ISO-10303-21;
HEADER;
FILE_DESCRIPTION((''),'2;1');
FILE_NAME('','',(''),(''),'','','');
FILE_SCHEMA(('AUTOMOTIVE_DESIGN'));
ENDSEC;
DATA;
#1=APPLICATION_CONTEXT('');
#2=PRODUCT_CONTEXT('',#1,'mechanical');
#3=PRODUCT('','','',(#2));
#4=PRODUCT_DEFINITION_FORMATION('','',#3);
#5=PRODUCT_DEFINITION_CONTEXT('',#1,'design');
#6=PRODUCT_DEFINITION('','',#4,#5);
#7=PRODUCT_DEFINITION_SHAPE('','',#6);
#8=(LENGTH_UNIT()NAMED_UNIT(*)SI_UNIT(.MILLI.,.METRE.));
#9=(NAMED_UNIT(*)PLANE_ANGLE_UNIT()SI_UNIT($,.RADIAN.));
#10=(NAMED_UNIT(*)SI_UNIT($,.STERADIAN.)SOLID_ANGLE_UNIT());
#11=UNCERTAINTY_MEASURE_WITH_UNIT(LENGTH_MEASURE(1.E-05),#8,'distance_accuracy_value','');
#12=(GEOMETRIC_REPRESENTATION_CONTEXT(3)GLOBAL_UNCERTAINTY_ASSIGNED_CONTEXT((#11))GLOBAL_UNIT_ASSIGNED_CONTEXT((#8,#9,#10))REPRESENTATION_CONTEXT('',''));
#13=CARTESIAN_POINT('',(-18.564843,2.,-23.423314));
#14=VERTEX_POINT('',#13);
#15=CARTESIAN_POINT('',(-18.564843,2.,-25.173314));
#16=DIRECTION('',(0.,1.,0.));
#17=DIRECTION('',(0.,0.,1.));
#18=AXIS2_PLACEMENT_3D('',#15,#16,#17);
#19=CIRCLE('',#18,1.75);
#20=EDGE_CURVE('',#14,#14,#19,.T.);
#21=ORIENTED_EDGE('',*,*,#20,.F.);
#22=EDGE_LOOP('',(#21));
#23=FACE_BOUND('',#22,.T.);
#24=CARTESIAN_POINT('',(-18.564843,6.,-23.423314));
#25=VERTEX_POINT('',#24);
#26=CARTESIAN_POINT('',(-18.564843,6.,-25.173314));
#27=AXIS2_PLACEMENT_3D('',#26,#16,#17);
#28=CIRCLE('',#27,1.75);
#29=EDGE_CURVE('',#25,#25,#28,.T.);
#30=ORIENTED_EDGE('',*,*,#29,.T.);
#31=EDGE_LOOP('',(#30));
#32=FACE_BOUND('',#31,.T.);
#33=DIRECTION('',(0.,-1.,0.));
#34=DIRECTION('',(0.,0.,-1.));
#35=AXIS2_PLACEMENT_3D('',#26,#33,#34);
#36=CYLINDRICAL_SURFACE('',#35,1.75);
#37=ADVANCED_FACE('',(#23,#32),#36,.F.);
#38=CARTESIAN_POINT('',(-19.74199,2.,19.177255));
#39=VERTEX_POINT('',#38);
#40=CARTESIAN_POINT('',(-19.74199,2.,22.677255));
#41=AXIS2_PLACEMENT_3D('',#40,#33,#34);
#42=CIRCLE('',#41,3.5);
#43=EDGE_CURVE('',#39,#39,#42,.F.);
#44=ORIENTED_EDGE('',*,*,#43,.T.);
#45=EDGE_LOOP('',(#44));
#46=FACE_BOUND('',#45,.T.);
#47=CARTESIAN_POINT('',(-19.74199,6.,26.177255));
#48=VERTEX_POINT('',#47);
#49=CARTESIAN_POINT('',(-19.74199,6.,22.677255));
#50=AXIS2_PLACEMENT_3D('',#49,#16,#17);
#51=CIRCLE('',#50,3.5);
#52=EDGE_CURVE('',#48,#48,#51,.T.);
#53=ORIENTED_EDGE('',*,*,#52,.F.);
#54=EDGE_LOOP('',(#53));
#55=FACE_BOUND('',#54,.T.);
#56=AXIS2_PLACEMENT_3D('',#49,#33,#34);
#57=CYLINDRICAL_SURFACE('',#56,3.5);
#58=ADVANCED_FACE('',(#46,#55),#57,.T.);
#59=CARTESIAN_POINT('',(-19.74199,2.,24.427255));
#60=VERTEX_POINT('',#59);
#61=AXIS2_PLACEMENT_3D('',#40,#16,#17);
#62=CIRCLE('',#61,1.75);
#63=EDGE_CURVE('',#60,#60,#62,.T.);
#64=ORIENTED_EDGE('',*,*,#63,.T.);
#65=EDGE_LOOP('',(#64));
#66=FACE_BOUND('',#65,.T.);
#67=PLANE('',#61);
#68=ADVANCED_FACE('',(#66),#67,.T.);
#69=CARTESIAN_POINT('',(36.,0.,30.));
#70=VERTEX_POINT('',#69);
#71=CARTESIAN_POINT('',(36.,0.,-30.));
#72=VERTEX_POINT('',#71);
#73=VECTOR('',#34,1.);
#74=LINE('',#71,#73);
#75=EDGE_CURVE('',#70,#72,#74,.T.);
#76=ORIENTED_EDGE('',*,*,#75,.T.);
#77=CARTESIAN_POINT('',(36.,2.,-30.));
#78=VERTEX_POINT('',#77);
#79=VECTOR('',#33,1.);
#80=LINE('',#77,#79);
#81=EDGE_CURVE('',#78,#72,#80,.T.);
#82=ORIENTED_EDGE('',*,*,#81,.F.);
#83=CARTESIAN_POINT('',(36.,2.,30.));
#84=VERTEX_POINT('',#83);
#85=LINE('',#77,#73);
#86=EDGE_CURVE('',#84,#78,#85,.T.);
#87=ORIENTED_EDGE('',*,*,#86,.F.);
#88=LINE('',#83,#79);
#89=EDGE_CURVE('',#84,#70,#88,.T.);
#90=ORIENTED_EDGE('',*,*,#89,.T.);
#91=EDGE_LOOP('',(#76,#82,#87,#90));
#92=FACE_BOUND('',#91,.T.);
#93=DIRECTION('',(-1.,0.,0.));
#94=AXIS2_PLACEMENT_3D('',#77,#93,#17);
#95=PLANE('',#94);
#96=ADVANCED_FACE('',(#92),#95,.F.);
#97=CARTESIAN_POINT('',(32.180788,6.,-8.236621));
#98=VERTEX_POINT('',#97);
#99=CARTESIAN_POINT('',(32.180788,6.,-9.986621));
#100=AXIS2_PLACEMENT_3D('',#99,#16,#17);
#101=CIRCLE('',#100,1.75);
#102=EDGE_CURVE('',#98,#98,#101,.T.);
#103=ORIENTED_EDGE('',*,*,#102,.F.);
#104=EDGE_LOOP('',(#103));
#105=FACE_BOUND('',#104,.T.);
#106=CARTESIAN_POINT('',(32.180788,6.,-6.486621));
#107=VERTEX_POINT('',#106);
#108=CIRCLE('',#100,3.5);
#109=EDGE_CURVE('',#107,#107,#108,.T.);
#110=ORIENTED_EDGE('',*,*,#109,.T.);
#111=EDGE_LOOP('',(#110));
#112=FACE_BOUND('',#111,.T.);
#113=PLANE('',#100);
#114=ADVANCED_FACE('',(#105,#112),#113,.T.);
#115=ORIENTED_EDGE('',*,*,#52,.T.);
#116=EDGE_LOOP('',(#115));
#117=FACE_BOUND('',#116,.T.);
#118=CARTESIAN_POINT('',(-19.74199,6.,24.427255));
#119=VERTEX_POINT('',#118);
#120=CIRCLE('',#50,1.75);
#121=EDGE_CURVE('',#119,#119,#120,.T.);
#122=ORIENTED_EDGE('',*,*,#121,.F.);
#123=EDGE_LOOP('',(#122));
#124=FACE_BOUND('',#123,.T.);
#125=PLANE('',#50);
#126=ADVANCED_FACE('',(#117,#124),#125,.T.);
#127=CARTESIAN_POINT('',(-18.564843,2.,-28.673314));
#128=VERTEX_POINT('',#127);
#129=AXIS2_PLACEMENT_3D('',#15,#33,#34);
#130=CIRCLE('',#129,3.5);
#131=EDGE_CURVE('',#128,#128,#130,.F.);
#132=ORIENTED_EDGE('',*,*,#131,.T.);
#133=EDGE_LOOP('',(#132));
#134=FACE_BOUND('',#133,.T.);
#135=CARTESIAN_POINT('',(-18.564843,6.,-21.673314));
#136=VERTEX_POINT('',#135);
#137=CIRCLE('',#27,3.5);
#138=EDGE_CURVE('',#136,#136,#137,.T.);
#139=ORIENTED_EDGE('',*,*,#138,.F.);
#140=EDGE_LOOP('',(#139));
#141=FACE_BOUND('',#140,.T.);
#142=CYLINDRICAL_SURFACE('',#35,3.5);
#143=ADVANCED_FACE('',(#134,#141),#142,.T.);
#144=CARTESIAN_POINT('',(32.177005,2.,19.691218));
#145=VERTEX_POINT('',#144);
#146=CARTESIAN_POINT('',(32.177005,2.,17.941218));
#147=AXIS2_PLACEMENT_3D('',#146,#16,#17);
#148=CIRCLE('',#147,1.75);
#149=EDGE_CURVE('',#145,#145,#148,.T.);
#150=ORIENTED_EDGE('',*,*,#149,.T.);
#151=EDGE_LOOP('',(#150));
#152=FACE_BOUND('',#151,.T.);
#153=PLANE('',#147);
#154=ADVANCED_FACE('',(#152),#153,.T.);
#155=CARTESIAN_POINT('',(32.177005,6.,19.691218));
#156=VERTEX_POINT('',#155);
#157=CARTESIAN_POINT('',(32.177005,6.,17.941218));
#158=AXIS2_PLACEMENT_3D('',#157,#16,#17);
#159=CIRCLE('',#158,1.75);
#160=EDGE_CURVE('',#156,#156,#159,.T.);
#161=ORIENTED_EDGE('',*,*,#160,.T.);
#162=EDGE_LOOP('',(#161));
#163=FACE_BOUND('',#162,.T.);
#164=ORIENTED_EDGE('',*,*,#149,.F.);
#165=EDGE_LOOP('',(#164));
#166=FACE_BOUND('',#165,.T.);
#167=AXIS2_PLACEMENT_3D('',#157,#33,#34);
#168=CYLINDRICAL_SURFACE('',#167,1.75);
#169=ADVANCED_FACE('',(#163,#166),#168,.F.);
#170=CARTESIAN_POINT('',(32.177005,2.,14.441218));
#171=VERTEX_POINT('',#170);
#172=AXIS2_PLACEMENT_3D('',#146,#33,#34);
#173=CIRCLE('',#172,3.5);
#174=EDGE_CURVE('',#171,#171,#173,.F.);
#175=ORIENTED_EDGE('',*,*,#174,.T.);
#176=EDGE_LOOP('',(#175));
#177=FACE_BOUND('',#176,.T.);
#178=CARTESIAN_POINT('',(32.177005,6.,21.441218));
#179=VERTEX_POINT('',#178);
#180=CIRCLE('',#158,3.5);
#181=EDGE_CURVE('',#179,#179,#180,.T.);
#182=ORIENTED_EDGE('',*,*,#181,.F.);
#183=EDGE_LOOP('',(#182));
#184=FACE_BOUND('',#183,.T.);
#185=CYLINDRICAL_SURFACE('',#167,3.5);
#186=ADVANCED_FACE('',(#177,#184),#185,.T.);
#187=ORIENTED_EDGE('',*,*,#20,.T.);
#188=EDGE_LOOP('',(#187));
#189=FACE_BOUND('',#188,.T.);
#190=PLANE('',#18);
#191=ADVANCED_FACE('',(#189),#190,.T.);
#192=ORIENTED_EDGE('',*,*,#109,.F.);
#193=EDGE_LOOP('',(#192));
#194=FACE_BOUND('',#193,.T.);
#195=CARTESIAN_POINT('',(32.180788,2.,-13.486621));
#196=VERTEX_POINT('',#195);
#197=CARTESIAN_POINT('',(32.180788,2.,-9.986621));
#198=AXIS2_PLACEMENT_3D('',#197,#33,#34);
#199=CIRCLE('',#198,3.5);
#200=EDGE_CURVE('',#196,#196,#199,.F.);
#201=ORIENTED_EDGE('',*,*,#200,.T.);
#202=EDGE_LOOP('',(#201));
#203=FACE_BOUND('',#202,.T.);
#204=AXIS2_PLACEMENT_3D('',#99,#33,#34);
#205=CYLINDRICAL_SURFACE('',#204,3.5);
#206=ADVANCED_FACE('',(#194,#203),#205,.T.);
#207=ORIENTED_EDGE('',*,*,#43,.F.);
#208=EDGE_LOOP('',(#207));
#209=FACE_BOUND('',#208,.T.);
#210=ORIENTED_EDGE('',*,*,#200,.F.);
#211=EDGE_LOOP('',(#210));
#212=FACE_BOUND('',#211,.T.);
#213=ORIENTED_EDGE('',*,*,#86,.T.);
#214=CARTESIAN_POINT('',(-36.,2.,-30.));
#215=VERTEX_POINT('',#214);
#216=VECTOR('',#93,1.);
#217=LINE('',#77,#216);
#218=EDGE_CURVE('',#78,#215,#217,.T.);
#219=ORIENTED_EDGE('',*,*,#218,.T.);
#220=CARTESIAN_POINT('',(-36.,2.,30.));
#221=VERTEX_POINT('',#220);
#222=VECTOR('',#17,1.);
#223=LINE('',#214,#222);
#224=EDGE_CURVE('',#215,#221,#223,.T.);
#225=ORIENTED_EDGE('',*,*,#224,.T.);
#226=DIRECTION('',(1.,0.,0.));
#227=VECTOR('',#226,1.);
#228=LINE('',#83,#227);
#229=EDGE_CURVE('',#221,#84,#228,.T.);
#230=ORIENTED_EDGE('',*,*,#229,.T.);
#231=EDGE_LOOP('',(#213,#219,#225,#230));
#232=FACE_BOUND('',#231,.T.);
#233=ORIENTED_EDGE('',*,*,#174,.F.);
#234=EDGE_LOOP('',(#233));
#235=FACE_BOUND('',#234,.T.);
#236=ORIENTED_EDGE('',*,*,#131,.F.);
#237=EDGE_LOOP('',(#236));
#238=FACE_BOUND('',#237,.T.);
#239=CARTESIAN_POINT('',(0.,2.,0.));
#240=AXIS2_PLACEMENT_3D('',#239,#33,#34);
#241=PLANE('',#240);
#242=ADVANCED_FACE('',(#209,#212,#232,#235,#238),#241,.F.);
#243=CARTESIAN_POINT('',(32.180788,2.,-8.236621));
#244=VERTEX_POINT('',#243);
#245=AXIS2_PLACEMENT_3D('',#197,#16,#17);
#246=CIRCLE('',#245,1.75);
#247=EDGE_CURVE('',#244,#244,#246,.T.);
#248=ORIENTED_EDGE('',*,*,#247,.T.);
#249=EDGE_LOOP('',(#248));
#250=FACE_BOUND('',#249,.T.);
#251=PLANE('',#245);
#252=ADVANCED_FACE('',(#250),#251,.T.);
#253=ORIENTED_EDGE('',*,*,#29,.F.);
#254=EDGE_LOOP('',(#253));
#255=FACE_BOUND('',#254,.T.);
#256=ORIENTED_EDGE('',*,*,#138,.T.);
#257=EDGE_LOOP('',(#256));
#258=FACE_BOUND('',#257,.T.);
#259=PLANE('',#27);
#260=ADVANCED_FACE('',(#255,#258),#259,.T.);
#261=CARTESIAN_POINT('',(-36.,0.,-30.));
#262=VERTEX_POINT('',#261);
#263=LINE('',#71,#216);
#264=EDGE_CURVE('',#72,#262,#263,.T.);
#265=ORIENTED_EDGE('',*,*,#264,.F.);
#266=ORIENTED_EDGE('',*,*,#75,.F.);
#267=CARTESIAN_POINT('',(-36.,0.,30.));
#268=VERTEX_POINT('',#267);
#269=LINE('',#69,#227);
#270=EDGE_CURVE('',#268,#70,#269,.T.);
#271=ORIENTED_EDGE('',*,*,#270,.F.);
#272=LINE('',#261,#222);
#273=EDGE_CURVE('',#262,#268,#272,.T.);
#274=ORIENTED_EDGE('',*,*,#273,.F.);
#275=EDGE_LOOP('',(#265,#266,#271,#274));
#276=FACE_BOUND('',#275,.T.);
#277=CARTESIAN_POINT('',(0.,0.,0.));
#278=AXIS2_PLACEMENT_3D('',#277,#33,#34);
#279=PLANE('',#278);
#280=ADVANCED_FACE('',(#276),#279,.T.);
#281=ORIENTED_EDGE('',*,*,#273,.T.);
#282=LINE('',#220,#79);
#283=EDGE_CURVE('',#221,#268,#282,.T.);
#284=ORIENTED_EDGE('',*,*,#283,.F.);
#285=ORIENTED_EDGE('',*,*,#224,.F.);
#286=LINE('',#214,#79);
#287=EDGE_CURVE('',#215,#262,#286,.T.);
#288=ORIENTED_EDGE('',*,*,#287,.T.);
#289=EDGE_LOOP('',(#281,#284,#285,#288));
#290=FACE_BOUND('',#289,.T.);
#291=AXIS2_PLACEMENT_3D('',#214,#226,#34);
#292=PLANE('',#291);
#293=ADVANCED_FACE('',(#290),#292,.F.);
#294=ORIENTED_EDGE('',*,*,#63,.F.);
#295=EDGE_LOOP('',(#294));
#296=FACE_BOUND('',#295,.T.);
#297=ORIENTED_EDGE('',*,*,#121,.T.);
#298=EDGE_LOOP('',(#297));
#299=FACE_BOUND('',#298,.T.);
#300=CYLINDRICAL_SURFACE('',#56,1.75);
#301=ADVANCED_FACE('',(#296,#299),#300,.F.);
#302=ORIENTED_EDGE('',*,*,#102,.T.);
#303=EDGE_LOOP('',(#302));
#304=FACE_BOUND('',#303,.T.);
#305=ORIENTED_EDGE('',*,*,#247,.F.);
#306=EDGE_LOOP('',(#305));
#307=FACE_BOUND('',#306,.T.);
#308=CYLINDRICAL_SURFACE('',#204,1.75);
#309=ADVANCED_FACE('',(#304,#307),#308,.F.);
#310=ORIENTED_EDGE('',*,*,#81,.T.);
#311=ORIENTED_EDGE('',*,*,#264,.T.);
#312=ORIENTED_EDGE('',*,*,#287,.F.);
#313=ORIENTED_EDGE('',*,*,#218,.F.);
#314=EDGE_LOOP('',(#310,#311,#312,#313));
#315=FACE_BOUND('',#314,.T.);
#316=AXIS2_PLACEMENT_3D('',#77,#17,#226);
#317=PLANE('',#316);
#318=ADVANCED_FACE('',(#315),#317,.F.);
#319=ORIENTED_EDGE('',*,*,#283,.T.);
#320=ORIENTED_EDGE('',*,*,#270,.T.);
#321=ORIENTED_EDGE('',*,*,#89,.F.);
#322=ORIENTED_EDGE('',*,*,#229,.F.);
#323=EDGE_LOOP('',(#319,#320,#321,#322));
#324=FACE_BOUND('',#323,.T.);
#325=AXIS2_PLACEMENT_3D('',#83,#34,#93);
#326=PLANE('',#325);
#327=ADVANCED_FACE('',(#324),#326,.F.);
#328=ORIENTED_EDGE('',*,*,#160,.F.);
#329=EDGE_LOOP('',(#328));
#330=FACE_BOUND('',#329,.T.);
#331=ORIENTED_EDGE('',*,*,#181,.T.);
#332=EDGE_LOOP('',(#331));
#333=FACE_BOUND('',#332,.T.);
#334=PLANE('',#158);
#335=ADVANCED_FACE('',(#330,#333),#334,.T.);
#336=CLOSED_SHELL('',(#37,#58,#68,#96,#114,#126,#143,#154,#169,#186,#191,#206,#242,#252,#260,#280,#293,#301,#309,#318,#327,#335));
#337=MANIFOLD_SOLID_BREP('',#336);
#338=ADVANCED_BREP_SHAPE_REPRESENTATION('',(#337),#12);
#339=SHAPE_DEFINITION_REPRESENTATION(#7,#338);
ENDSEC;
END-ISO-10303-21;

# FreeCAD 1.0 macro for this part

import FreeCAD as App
import Part
import Sketcher


def add_polygon(sketch, points):
    """Adds a closed chain of lines whose ends are joined by coincident constraints."""
    first, n = sketch.GeometryCount, len(points)
    for a, b in zip(points, points[1:] + points[:1]):
        sketch.addGeometry(Part.LineSegment(App.Vector(*a, 0), App.Vector(*b, 0)), False)
    for i in range(n):
        sketch.addConstraint(Sketcher.Constraint("Coincident", first + i, 2, first + (i + 1) % n, 1))

doc = App.newDocument("Part")
body = doc.addObject("PartDesign::Body", "Body")

sketch1 = body.newObject("Sketcher::SketchObject", "Sketch")
sketch1.AttachmentSupport = (doc.getObject("XZ_Plane"), [""])
sketch1.MapMode = "FlatFace"
add_polygon(sketch1, [(-36, -30), (-36, 30), (36, 30), (36, -30)])
sketch1.addConstraint([
    Sketcher.Constraint("Vertical", 0),
    Sketcher.Constraint("Horizontal", 1),
    Sketcher.Constraint("Vertical", 2),
    Sketcher.Constraint("Horizontal", 3),
    Sketcher.Constraint("Symmetric", 0, 2, 2, 2, -1, 1),
    Sketcher.Constraint("DistanceX", 1, 1, 1, 2, 72.0),
    Sketcher.Constraint("DistanceY", 0, 1, 0, 2, 60.0),
])
pad1 = body.newObject("PartDesign::Pad", "Pad")
pad1.Profile = sketch1
pad1.Length = 2
pad1.Reversed = True

sketch2 = body.newObject("Sketcher::SketchObject", "Sketch001")
sketch2.AttachmentSupport = (doc.getObject("XZ_Plane"), [""])
sketch2.MapMode = "FlatFace"
sketch2.AttachmentOffset = App.Placement(App.Vector(0, 0, -2), App.Rotation())
sketch2.addGeometry([
    Part.Circle(App.Vector(-19.7, 22.7, 0), App.Vector(0, 0, 1), 3.5),
    Part.Circle(App.Vector(32.2, 17.9, 0), App.Vector(0, 0, 1), 3.5),
    Part.Circle(App.Vector(32.2, -10, 0), App.Vector(0, 0, 1), 3.5),
    Part.Circle(App.Vector(-18.6, -25.2, 0), App.Vector(0, 0, 1), 3.5),
], False)
sketch2.addConstraint([
    Sketcher.Constraint("Equal", 0, 1),
    Sketcher.Constraint("Equal", 1, 2),
    Sketcher.Constraint("Equal", 2, 3),
    Sketcher.Constraint("Diameter", 0, 7.0),
    Sketcher.Constraint("DistanceX", 0, 3, -1, 1, 19.74199),
    Sketcher.Constraint("DistanceY", 2, 3, -1, 1, 9.986621),
    Sketcher.Constraint("DistanceY", 2, 3, 1, 3, 27.927838),
    Sketcher.Constraint("DistanceY", 3, 3, 0, 3, 47.850568),
    Sketcher.Constraint("DistanceX", 3, 3, 2, 3, 50.745631),
    Sketcher.Constraint("DistanceY", 3, 3, 1, 3, 43.114532),
    Sketcher.Constraint("DistanceX", -1, 1, 1, 3, 32.177005),
    Sketcher.Constraint("DistanceX", -1, 1, 2, 3, 32.180788),
])
pad2 = body.newObject("PartDesign::Pad", "Pad001")
pad2.Profile = sketch2
pad2.Length = 4
pad2.Reversed = True

sketch3 = body.newObject("Sketcher::SketchObject", "Sketch002")
sketch3.AttachmentSupport = (doc.getObject("XZ_Plane"), [""])
sketch3.MapMode = "FlatFace"
sketch3.AttachmentOffset = App.Placement(App.Vector(0, 0, -2), App.Rotation())
sketch3.addGeometry([
    Part.Circle(App.Vector(-18.6, -25.2, 0), App.Vector(0, 0, 1), 1.8),
    Part.Circle(App.Vector(32.2, -10, 0), App.Vector(0, 0, 1), 1.8),
    Part.Circle(App.Vector(32.2, 17.9, 0), App.Vector(0, 0, 1), 1.8),
    Part.Circle(App.Vector(-19.7, 22.7, 0), App.Vector(0, 0, 1), 1.8),
], False)
sketch3.addConstraint([
    Sketcher.Constraint("Equal", 0, 1),
    Sketcher.Constraint("Equal", 1, 2),
    Sketcher.Constraint("Equal", 2, 3),
    Sketcher.Constraint("Diameter", 0, 3.5),
    Sketcher.Constraint("DistanceY", 1, 3, -1, 1, 9.986621),
    Sketcher.Constraint("DistanceX", 3, 3, -1, 1, 19.74199),
    Sketcher.Constraint("DistanceX", 0, 3, 1, 3, 50.745631),
    Sketcher.Constraint("DistanceY", 1, 3, 2, 3, 27.927838),
    Sketcher.Constraint("DistanceY", 0, 3, 2, 3, 43.114532),
    Sketcher.Constraint("DistanceY", 0, 3, 3, 3, 47.850568),
    Sketcher.Constraint("DistanceX", 0, 3, -1, 1, 18.564843),
    Sketcher.Constraint("DistanceX", -1, 1, 2, 3, 32.177005),
])
pocket1 = body.newObject("PartDesign::Pocket", "Pocket")
pocket1.Profile = sketch3
pocket1.Length = 4

doc.recompute()
